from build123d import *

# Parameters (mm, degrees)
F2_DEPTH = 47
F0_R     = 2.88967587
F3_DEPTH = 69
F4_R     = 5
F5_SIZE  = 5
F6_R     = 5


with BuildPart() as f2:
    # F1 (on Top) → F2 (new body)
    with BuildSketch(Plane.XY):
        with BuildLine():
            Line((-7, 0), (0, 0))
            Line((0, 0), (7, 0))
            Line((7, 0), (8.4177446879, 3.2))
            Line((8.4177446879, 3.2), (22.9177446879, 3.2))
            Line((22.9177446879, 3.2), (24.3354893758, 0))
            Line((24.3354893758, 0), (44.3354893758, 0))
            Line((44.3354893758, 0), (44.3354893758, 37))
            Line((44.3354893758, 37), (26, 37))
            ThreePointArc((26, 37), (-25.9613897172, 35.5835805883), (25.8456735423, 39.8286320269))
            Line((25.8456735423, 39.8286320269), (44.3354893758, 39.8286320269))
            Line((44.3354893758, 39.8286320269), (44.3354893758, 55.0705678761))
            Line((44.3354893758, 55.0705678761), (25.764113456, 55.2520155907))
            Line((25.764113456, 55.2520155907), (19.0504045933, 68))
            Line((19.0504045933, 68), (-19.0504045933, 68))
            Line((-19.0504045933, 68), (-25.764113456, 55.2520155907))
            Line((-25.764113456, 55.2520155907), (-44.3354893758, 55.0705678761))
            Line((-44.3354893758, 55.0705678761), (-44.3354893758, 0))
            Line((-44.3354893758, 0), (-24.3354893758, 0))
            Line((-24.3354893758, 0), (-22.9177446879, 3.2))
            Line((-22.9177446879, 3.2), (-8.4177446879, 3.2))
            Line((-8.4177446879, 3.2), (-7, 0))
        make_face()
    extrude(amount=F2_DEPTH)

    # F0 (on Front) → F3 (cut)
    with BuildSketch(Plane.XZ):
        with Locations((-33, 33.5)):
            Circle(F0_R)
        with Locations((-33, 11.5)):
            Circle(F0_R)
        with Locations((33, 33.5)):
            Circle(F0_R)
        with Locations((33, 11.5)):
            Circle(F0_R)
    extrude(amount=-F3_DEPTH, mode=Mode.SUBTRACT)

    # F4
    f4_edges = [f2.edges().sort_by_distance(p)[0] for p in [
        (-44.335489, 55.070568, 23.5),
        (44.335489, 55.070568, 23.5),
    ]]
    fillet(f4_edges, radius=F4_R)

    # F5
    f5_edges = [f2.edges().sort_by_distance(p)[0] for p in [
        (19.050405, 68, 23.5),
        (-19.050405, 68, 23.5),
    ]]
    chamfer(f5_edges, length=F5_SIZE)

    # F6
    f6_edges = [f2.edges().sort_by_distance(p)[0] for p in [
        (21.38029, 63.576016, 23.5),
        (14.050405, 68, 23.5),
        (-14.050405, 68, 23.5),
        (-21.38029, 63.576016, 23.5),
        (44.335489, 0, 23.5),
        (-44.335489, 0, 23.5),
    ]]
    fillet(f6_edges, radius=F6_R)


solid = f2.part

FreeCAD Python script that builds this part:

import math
import FreeCAD as App
import Part
import Sketcher


def edges_at(feature, points):
    """Names of the edges that pass closest to the given points."""
    edges = feature.Shape.Edges
    near = lambda p: min(range(len(edges)), key=lambda i: edges[i].distToShape(Part.Vertex(*p))[0])
    return sorted({f"Edge{near(p) + 1}" for p in points})

doc = App.newDocument("Part")
body = doc.addObject("PartDesign::Body", "Body")

# Sketch on XY plane
sketch1 = doc.addObject("Sketcher::SketchObject", "Sketch")
body.addObject(sketch1)
sketch1.AttachmentSupport = (doc.XY_Plane, [""])
sketch1.MapMode = "FlatFace"
sketch1.addGeometry(Part.LineSegment(App.Vector(-7, 0, 0), App.Vector(7, 0, 0)), False)
sketch1.addGeometry(Part.LineSegment(App.Vector(7, 0, 0), App.Vector(8.4, 3.2, 0)), False)
sketch1.addGeometry(Part.LineSegment(App.Vector(8.4, 3.2, 0), App.Vector(22.9, 3.2, 0)), False)
sketch1.addGeometry(Part.LineSegment(App.Vector(22.9, 3.2, 0), App.Vector(24.3, 0, 0)), False)
sketch1.addGeometry(Part.LineSegment(App.Vector(24.3, 0, 0), App.Vector(44.3, 0, 0)), False)
sketch1.addGeometry(Part.LineSegment(App.Vector(44.3, 0, 0), App.Vector(44.3, 37, 0)), False)
sketch1.addGeometry(Part.LineSegment(App.Vector(44.3, 37, 0), App.Vector(26, 37, 0)), False)
sketch1.addGeometry(Part.ArcOfCircle(Part.Circle(App.Vector(0, 37, 0), App.Vector(0, 0, 1), 26), math.radians(6), math.radians(360)), False)
sketch1.addGeometry(Part.LineSegment(App.Vector(25.8, 39.8, 0), App.Vector(44.3, 39.8, 0)), False)
sketch1.addGeometry(Part.LineSegment(App.Vector(44.3, 39.8, 0), App.Vector(44.3, 55.1, 0)), False)
sketch1.addGeometry(Part.LineSegment(App.Vector(44.3, 55.1, 0), App.Vector(25.8, 55.3, 0)), False)
sketch1.addGeometry(Part.LineSegment(App.Vector(25.8, 55.3, 0), App.Vector(19.1, 68, 0)), False)
sketch1.addGeometry(Part.LineSegment(App.Vector(19.1, 68, 0), App.Vector(-19.1, 68, 0)), False)
sketch1.addGeometry(Part.LineSegment(App.Vector(-19.1, 68, 0), App.Vector(-25.8, 55.3, 0)), False)
sketch1.addGeometry(Part.LineSegment(App.Vector(-25.8, 55.3, 0), App.Vector(-44.3, 55.1, 0)), False)
sketch1.addGeometry(Part.LineSegment(App.Vector(-44.3, 55.1, 0), App.Vector(-44.3, 0, 0)), False)
sketch1.addGeometry(Part.LineSegment(App.Vector(-44.3, 0, 0), App.Vector(-24.3, 0, 0)), False)
sketch1.addGeometry(Part.LineSegment(App.Vector(-24.3, 0, 0), App.Vector(-22.9, 3.2, 0)), False)
sketch1.addGeometry(Part.LineSegment(App.Vector(-22.9, 3.2, 0), App.Vector(-8.4, 3.2, 0)), False)
sketch1.addGeometry(Part.LineSegment(App.Vector(-8.4, 3.2, 0), App.Vector(-7, 0, 0)), False)
sketch1.addConstraint(Sketcher.Constraint("Coincident", 0, 2, 1, 1))
sketch1.addConstraint(Sketcher.Constraint("Coincident", 1, 2, 2, 1))
sketch1.addConstraint(Sketcher.Constraint("Coincident", 2, 2, 3, 1))
sketch1.addConstraint(Sketcher.Constraint("Coincident", 3, 2, 4, 1))
sketch1.addConstraint(Sketcher.Constraint("Coincident", 4, 2, 5, 1))
sketch1.addConstraint(Sketcher.Constraint("Coincident", 5, 2, 6, 1))
sketch1.addConstraint(Sketcher.Constraint("Coincident", 6, 2, 7, 2))
sketch1.addConstraint(Sketcher.Constraint("Coincident", 7, 1, 8, 1))
sketch1.addConstraint(Sketcher.Constraint("Coincident", 8, 2, 9, 1))
sketch1.addConstraint(Sketcher.Constraint("Coincident", 9, 2, 10, 1))
sketch1.addConstraint(Sketcher.Constraint("Coincident", 10, 2, 11, 1))
sketch1.addConstraint(Sketcher.Constraint("Coincident", 11, 2, 12, 1))
sketch1.addConstraint(Sketcher.Constraint("Coincident", 12, 2, 13, 1))
sketch1.addConstraint(Sketcher.Constraint("Coincident", 13, 2, 14, 1))
sketch1.addConstraint(Sketcher.Constraint("Coincident", 14, 2, 15, 1))
sketch1.addConstraint(Sketcher.Constraint("Coincident", 15, 2, 16, 1))
sketch1.addConstraint(Sketcher.Constraint("Coincident", 16, 2, 17, 1))
sketch1.addConstraint(Sketcher.Constraint("Coincident", 17, 2, 18, 1))
sketch1.addConstraint(Sketcher.Constraint("Coincident", 18, 2, 19, 1))
sketch1.addConstraint(Sketcher.Constraint("Coincident", 19, 2, 0, 1))
sketch1.addConstraint(Sketcher.Constraint("Horizontal", 0))
sketch1.addConstraint(Sketcher.Constraint("Horizontal", 2))
sketch1.addConstraint(Sketcher.Constraint("Horizontal", 4))
sketch1.addConstraint(Sketcher.Constraint("Vertical", 5))
sketch1.addConstraint(Sketcher.Constraint("Horizontal", 6))
sketch1.addConstraint(Sketcher.Constraint("Horizontal", 8))
sketch1.addConstraint(Sketcher.Constraint("Vertical", 9))
sketch1.addConstraint(Sketcher.Constraint("Horizontal", 12))
sketch1.addConstraint(Sketcher.Constraint("Vertical", 15))
sketch1.addConstraint(Sketcher.Constraint("Horizontal", 16))
sketch1.addConstraint(Sketcher.Constraint("Horizontal", 18))
sketch1.addConstraint(Sketcher.Constraint("Symmetric", 4, 2, 15, 2, -1, 1))
sketch1.addConstraint(Sketcher.Constraint("Symmetric", 0, 2, 19, 2, -1, 1))
sketch1.addConstraint(Sketcher.Constraint("Symmetric", 10, 2, 13, 2, -2))
sketch1.addConstraint(Sketcher.Constraint("Symmetric", 9, 2, 14, 2, -2))
sketch1.addConstraint(Sketcher.Constraint("Symmetric", 3, 2, 16, 2, -2))
sketch1.addConstraint(Sketcher.Constraint("Symmetric", 2, 2, 17, 2, -2))
sketch1.addConstraint(Sketcher.Constraint("PointOnObject", 7, 3, -2))
sketch1.addConstraint(Sketcher.Constraint("Parallel", 1, 17))
sketch1.addConstraint(Sketcher.Constraint("Parallel", 3, 19))
sketch1.addConstraint(Sketcher.Constraint("Horizontal", 7, 3, 5, 2))
sketch1.addConstraint(Sketcher.Constraint("Equal", 11, 13))
sketch1.addConstraint(Sketcher.Constraint("Radius", 7, 26.0))
sketch1.addConstraint(Sketcher.Constraint("DistanceX", 0, 1, 0, 2, 14.0))
sketch1.addConstraint(Sketcher.Constraint("DistanceX", 4, 1, 4, 2, 20.0))
sketch1.addConstraint(Sketcher.Constraint("DistanceY", 5, 1, 5, 2, 37.0))
sketch1.addConstraint(Sketcher.Constraint("DistanceX", 2, 1, 2, 2, 14.5))
sketch1.addConstraint(Sketcher.Constraint("DistanceY", -1, 1, 11, 2, 68.0))
sketch1.addConstraint(Sketcher.Constraint("Distance", 1, 3.5))
sketch1.addConstraint(Sketcher.Constraint("DistanceY", -1, 1, 1, 2, 3.2))
sketch1.addConstraint(Sketcher.Constraint("DistanceX", 12, 2, 12, 1, 38.100809))
sketch1.addConstraint(Sketcher.Constraint("Distance", 11, 14.40781))
sketch1.addConstraint(Sketcher.Constraint("DistanceX", 8, 1, 8, 2, 18.489816))
sketch1.addConstraint(Sketcher.Constraint("DistanceY", 9, 1, 9, 2, 15.241936))
sketch1.addConstraint(Sketcher.Constraint("DistanceX", 10, 2, 7, 1, 0.08156))
pad1 = doc.addObject("PartDesign::Pad", "Pad")
body.addObject(pad1)
pad1.Profile = sketch1
pad1.Length = 47

# Sketch on XZ plane
sketch2 = doc.addObject("Sketcher::SketchObject", "Sketch001")
body.addObject(sketch2)
sketch2.AttachmentSupport = (doc.XZ_Plane, [""])
sketch2.MapMode = "FlatFace"
sketch2.addGeometry(Part.Circle(App.Vector(-33, 33.5, 0), App.Vector(0, 0, 1), 2.9), False)
sketch2.addGeometry(Part.Circle(App.Vector(-33, 11.5, 0), App.Vector(0, 0, 1), 2.9), False)
sketch2.addGeometry(Part.Circle(App.Vector(33, 33.5, 0), App.Vector(0, 0, 1), 2.9), False)
sketch2.addGeometry(Part.Circle(App.Vector(33, 11.5, 0), App.Vector(0, 0, 1), 2.9), False)
sketch2.addConstraint(Sketcher.Constraint("Equal", 0, 1))
sketch2.addConstraint(Sketcher.Constraint("Equal", 1, 2))
sketch2.addConstraint(Sketcher.Constraint("Equal", 2, 3))
sketch2.addConstraint(Sketcher.Constraint("Symmetric", 0, 3, 2, 3, -2))
sketch2.addConstraint(Sketcher.Constraint("Symmetric", 1, 3, 3, 3, -2))
sketch2.addConstraint(Sketcher.Constraint("Vertical", 0, 3, 1, 3))
sketch2.addConstraint(Sketcher.Constraint("DistanceX", 0, 3, -1, 1, 33.0))
sketch2.addConstraint(Sketcher.Constraint("DistanceY", 1, 3, 0, 3, 22.0))
sketch2.addConstraint(Sketcher.Constraint("DistanceY", -1, 1, 0, 3, 33.5))
sketch2.addConstraint(Sketcher.Constraint("Diameter", 0, 5.779352))
pocket1 = doc.addObject("PartDesign::Pocket", "Pocket")
body.addObject(pocket1)
pocket1.Profile = sketch2
pocket1.Length = 69
doc.recompute()

fillet = doc.addObject("PartDesign::Fillet", "Fillet")
body.addObject(fillet)
fillet.Base = (pocket1, edges_at(pocket1, [(-44.335, 55.071, 23.5), (44.335, 55.071, 23.5)]))
fillet.Radius = 5
doc.recompute()

chamfer = doc.addObject("PartDesign::Chamfer", "Chamfer")
body.addObject(chamfer)
chamfer.Base = (fillet, edges_at(fillet, [(19.05, 68, 23.5), (-19.05, 68, 23.5)]))
chamfer.Size = 5
doc.recompute()

fillet2 = doc.addObject("PartDesign::Fillet", "Fillet001")
body.addObject(fillet2)
fillet2.Base = (chamfer, edges_at(chamfer, [
    (21.38, 63.576, 23.5),
    (14.05, 68, 23.5),
    (-14.05, 68, 23.5),
    (-21.38, 63.576, 23.5),
    (44.335, 0, 23.5),
    (-44.335, 0, 23.5),
]))
fillet2.Radius = 5

doc.recompute()
